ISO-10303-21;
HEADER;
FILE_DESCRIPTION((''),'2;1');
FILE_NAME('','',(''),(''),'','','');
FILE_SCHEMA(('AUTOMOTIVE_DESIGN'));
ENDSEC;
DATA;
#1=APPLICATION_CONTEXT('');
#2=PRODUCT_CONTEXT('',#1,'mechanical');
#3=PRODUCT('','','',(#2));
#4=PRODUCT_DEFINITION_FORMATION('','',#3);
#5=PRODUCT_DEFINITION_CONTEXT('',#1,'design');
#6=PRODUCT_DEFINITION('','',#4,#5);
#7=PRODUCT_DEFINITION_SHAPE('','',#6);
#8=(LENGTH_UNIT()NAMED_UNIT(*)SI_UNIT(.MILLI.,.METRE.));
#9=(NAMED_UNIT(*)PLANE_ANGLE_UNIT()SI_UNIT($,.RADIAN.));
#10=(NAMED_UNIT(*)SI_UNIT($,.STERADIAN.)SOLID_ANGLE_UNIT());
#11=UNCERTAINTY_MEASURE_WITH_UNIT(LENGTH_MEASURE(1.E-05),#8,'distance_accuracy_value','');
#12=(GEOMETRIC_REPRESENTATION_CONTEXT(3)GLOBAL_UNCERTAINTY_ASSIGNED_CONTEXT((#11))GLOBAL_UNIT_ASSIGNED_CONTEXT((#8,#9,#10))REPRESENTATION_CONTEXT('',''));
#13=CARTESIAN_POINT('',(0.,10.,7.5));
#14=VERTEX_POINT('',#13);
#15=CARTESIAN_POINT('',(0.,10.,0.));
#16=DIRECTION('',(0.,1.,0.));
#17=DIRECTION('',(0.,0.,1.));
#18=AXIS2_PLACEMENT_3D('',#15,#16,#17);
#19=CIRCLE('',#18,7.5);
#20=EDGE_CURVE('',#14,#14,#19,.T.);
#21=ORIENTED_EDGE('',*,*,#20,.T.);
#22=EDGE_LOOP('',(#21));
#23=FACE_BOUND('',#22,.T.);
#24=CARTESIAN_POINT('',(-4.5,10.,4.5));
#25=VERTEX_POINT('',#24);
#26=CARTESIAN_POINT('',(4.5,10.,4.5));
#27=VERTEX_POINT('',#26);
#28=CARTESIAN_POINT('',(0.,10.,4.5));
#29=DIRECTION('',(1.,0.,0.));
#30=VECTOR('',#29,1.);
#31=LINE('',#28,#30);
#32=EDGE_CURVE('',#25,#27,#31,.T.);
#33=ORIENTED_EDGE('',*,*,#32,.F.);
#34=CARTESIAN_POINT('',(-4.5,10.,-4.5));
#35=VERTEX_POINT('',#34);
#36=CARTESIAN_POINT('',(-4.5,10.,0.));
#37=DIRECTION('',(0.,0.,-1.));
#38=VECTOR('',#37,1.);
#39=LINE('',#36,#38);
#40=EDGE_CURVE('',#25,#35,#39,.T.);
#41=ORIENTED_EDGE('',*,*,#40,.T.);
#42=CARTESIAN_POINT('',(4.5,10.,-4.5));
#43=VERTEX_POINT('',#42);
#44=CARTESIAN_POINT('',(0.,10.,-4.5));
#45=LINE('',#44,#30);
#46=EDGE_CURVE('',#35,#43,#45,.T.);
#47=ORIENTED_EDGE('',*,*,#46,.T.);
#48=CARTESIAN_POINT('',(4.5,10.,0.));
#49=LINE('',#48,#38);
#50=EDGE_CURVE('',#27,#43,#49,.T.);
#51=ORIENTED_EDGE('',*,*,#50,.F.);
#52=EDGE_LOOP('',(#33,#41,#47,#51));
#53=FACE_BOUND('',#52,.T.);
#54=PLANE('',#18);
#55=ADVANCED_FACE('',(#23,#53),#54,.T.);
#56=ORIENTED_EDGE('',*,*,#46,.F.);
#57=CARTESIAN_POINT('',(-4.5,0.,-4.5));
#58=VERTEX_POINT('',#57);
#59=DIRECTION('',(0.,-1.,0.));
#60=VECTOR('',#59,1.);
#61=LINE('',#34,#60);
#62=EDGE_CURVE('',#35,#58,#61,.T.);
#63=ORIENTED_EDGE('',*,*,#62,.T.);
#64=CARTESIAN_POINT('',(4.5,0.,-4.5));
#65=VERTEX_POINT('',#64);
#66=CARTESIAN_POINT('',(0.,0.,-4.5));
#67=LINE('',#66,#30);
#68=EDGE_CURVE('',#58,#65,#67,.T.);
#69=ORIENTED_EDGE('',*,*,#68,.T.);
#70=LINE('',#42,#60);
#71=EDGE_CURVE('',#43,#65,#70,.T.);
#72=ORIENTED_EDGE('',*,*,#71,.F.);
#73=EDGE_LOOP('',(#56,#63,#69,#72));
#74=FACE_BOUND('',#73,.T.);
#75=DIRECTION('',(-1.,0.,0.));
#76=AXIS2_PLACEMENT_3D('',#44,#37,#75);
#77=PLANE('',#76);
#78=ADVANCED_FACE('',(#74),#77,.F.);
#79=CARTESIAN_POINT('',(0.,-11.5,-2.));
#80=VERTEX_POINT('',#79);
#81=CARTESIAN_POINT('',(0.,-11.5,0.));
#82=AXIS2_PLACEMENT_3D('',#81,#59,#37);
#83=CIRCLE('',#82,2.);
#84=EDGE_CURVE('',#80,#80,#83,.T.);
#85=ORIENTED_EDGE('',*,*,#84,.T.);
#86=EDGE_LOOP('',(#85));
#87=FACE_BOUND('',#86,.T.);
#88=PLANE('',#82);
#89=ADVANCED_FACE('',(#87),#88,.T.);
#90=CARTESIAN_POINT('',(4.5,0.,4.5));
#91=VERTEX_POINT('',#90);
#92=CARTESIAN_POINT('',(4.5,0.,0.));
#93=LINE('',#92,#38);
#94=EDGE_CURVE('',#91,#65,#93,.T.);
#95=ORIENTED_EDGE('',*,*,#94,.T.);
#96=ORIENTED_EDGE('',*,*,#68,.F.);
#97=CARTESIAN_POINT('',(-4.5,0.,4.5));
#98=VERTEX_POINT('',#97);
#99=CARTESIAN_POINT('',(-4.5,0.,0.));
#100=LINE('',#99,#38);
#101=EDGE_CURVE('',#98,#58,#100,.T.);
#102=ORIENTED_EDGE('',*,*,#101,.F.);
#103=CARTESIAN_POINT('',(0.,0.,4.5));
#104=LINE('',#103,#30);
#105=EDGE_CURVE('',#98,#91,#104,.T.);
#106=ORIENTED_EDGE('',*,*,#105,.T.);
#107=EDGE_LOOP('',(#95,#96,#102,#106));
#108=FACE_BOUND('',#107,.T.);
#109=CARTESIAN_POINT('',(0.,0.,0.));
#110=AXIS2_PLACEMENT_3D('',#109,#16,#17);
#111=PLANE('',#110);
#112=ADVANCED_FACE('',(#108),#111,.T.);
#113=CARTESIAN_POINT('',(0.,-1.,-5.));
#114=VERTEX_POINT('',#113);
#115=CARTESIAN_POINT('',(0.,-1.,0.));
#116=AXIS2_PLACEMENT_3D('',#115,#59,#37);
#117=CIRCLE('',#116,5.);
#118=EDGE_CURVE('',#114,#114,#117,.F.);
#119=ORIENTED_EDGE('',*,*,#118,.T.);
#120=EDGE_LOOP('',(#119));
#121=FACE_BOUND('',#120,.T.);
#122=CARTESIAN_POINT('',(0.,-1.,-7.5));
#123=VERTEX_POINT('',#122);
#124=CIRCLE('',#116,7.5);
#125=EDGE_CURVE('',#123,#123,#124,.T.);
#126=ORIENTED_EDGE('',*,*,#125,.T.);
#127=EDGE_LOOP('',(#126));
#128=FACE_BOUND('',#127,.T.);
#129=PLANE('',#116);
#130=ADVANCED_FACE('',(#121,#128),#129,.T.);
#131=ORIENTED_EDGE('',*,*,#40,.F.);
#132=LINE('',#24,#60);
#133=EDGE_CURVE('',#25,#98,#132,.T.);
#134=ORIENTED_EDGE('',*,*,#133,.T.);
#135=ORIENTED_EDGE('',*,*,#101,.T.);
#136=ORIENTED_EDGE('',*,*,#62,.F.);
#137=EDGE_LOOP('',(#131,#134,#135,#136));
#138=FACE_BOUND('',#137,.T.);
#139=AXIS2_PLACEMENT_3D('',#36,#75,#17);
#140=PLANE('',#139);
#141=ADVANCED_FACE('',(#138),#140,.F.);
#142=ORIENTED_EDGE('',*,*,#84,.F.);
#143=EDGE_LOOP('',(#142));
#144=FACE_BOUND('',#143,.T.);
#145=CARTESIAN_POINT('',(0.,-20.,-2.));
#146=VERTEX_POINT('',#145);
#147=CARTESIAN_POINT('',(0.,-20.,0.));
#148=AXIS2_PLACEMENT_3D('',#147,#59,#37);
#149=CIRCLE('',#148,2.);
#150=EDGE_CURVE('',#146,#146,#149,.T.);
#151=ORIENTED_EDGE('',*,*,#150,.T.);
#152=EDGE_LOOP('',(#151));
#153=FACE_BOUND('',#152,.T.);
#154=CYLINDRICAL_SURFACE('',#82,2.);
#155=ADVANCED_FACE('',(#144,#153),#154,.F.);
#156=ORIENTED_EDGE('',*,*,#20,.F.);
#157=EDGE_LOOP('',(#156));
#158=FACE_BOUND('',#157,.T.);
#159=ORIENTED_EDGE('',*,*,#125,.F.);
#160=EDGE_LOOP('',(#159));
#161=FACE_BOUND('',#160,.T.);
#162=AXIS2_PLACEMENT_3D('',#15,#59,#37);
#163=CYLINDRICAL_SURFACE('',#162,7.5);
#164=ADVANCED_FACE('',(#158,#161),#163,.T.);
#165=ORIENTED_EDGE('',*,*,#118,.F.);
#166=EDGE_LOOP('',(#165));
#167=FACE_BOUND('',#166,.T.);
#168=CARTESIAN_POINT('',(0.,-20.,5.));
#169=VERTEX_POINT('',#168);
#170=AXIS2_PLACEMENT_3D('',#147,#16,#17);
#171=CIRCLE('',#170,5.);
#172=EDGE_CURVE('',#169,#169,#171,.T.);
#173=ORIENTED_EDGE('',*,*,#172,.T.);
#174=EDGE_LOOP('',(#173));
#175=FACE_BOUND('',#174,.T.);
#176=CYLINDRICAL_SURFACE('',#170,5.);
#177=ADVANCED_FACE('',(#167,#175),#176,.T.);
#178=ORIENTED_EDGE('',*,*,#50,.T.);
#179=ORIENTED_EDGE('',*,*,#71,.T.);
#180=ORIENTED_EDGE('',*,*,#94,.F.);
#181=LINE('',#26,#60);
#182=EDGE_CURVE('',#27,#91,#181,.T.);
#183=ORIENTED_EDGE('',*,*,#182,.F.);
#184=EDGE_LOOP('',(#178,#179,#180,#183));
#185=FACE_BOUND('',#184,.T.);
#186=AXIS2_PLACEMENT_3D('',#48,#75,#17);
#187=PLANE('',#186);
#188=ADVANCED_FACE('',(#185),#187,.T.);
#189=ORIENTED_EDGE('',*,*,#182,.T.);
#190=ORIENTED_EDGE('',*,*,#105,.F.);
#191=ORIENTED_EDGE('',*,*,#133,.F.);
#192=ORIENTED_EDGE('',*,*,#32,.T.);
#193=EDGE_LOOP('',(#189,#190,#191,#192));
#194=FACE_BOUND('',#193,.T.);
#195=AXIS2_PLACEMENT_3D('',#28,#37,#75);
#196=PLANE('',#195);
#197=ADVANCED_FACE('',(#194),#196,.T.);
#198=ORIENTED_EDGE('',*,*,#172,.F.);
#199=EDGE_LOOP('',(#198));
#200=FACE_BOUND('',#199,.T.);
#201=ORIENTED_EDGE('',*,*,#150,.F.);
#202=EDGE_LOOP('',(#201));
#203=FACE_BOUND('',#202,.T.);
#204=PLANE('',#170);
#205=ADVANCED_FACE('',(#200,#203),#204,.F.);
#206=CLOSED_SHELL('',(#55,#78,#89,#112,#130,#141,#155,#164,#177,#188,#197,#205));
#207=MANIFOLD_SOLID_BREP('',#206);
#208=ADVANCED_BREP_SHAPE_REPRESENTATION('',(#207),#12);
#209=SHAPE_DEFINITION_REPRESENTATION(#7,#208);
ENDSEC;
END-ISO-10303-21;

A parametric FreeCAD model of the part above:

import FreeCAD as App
import Part
import Sketcher


def add_polygon(sketch, points):
    """Adds a closed chain of lines whose ends are joined by coincident constraints."""
    first, n = sketch.GeometryCount, len(points)
    for a, b in zip(points, points[1:] + points[:1]):
        sketch.addGeometry(Part.LineSegment(App.Vector(*a, 0), App.Vector(*b, 0)), False)
    for i in range(n):
        sketch.addConstraint(Sketcher.Constraint("Coincident", first + i, 2, first + (i + 1) % n, 1))

doc = App.newDocument("Part")
body = doc.addObject("PartDesign::Body", "Body")

# Sketch on XZ plane
sketch1 = doc.addObject("Sketcher::SketchObject", "Sketch")
body.addObject(sketch1)
sketch1.AttachmentSupport = (doc.XZ_Plane, [""])
sketch1.MapMode = "FlatFace"
sketch1.addGeometry(Part.Circle(App.Vector(0, 0, 0), App.Vector(0, 0, 1), 8), False)  # 0
add_polygon(sketch1, [(4, 4), (-4, 4), (-4, -4), (4, -4)])  # lines 1-4
sketch1.addConstraint(Sketcher.Constraint("Horizontal", 1))
sketch1.addConstraint(Sketcher.Constraint("Vertical", 2))
sketch1.addConstraint(Sketcher.Constraint("Horizontal", 3))
sketch1.addConstraint(Sketcher.Constraint("Vertical", 4))
sketch1.addConstraint(Sketcher.Constraint("Coincident", 0, 3, -1, 1))
sketch1.addConstraint(Sketcher.Constraint("Symmetric", 1, 2, 3, 2, -1, 1))
sketch1.addConstraint(Sketcher.Constraint("Equal", 3, 2))
sketch1.addConstraint(Sketcher.Constraint("Diameter", 0, 15.0))
sketch1.addConstraint(Sketcher.Constraint("DistanceX", 1, 2, 1, 1, 9.0))
pad1 = doc.addObject("PartDesign::Pad", "Pad")
body.addObject(pad1)
pad1.Profile = sketch1
pad1.Length = 10
pad1.Reversed = True

# Sketch on XZ plane
sketch2 = doc.addObject("Sketcher::SketchObject", "Sketch001")
body.addObject(sketch2)
sketch2.AttachmentSupport = (doc.XZ_Plane, [""])
sketch2.MapMode = "FlatFace"
sketch2.addGeometry(Part.Circle(App.Vector(0, 0, 0), App.Vector(0, 0, 1), 5), False)
sketch2.addConstraint(Sketcher.Constraint("Coincident", 0, 3, -1, 1))
sketch2.addConstraint(Sketcher.Constraint("Diameter", 0, 10.0))
pad2 = doc.addObject("PartDesign::Pad", "Pad001")
body.addObject(pad2)
pad2.Profile = sketch2
pad2.Length = 20

# Sketch on XZ plane
sketch3 = doc.addObject("Sketcher::SketchObject", "Sketch002")
body.addObject(sketch3)
sketch3.AttachmentSupport = (doc.XZ_Plane, [""])
sketch3.MapMode = "FlatFace"
sketch3.AttachmentOffset = App.Placement(App.Vector(0, 0, 20), App.Rotation())
sketch3.addGeometry(Part.Circle(App.Vector(0, 0, 0), App.Vector(0, 0, 1), 2), False)
sketch3.addConstraint(Sketcher.Constraint("Coincident", 0, 3, -1, 1))
sketch3.addConstraint(Sketcher.Constraint("Diameter", 0, 4.0))
pocket1 = doc.addObject("PartDesign::Pocket", "Pocket")
body.addObject(pocket1)
pocket1.Profile = sketch3
pocket1.Length = 8.5

# Sketch on XZ plane
sketch4 = doc.addObject("Sketcher::SketchObject", "Sketch003")
body.addObject(sketch4)
sketch4.AttachmentSupport = (doc.XZ_Plane, [""])
sketch4.MapMode = "FlatFace"
sketch4.addGeometry(Part.Circle(App.Vector(0, 0, 0), App.Vector(0, 0, 1), 8), False)
sketch4.addConstraint(Sketcher.Constraint("Coincident", 0, 3, -1, 1))
sketch4.addConstraint(Sketcher.Constraint("Diameter", 0, 15.0))
pad3 = doc.addObject("PartDesign::Pad", "Pad002")
body.addObject(pad3)
pad3.Profile = sketch4
pad3.Length = 1

doc.recompute()
